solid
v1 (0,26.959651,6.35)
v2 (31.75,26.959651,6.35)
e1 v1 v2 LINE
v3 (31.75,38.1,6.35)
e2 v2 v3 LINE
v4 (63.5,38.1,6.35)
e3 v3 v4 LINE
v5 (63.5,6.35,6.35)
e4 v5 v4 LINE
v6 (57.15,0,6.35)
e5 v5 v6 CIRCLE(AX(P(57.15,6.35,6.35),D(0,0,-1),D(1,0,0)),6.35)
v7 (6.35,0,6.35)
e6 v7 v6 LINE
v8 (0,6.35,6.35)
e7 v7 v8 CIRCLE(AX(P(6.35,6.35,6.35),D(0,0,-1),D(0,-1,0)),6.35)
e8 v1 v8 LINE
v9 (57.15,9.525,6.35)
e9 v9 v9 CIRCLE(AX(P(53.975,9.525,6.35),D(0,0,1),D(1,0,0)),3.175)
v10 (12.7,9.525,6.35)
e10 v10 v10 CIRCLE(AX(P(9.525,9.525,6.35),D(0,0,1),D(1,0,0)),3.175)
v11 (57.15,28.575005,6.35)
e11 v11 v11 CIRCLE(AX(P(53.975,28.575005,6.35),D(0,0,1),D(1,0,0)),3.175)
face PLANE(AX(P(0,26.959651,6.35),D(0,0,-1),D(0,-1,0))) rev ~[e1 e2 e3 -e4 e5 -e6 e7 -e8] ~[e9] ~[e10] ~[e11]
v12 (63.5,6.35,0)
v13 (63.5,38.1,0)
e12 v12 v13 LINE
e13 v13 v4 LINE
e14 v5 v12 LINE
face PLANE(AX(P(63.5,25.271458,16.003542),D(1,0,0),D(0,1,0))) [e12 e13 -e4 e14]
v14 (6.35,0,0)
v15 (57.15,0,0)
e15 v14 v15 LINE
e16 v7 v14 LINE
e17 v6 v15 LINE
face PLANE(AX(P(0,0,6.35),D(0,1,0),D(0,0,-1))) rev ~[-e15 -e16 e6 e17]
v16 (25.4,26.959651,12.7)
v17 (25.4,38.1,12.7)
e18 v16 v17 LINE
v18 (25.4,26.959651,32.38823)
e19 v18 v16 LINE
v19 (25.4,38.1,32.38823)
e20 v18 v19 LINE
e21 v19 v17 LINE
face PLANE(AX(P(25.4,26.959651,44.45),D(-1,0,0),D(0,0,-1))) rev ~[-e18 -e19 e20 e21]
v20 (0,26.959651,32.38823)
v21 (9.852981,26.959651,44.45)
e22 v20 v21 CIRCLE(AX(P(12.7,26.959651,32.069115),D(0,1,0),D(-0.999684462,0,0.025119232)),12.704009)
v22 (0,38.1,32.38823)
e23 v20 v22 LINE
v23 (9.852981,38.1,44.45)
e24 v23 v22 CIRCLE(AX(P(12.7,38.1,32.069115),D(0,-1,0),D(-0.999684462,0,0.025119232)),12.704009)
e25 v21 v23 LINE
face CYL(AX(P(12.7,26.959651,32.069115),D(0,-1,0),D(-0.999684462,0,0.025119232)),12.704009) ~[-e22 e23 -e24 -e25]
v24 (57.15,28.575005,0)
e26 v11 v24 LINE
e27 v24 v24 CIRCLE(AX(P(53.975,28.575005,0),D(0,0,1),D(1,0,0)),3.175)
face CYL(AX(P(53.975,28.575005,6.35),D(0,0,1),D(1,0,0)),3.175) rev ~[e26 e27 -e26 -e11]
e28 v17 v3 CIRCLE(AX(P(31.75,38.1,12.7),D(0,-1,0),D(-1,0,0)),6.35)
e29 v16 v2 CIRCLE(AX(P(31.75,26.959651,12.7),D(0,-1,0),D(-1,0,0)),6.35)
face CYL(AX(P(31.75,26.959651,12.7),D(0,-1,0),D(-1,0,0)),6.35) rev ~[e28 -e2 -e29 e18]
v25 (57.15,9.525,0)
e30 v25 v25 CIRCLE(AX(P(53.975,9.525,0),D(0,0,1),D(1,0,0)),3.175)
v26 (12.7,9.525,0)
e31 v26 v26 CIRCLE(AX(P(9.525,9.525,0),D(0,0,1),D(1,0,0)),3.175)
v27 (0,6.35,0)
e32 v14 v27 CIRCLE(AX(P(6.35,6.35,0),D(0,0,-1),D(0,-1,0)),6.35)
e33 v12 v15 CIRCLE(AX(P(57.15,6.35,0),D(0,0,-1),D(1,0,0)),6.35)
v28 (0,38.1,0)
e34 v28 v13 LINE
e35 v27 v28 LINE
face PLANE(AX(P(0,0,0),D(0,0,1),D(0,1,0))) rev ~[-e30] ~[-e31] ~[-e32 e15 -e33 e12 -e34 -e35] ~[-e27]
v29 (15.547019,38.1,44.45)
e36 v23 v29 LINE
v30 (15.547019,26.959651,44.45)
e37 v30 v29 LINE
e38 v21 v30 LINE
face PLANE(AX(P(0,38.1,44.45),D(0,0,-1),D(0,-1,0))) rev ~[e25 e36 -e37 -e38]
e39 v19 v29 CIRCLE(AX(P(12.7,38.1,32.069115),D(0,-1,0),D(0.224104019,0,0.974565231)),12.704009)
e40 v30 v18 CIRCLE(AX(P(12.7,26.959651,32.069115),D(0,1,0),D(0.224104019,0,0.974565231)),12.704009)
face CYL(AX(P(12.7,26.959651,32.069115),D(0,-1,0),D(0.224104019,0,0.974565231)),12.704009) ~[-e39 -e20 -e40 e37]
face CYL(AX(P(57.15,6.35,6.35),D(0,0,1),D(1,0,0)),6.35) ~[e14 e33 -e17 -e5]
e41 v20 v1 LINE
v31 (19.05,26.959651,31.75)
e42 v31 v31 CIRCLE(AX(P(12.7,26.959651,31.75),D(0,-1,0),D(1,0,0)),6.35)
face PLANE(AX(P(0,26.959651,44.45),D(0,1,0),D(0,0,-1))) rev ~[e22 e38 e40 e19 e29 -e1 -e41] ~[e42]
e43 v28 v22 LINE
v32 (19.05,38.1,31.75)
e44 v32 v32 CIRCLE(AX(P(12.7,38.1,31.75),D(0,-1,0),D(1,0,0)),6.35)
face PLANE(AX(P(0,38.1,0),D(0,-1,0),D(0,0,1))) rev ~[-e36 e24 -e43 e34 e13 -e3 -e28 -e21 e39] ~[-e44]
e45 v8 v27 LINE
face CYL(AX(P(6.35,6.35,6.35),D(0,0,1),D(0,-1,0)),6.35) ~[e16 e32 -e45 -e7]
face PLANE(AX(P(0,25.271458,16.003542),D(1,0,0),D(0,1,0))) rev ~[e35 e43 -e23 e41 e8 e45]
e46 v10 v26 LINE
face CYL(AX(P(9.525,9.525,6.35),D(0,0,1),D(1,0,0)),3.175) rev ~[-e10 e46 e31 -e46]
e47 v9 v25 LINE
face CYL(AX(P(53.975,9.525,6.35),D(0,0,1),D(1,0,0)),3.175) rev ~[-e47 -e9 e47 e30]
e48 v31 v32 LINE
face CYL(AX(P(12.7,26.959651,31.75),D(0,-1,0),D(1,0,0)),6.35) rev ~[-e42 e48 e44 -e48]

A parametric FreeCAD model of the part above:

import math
import FreeCAD as App
import Part
import Sketcher
from FreeCAD import Vector
Q = App.Units.Quantity


def add_polygon(sketch, points):
    """Adds a closed chain of lines whose ends are joined by coincident constraints."""
    first, n = sketch.GeometryCount, len(points)
    for a, b in zip(points, points[1:] + points[:1]):
        sketch.addGeometry(Part.LineSegment(App.Vector(*a, 0), App.Vector(*b, 0)), False)
    for i in range(n):
        sketch.addConstraint(Sketcher.Constraint("Coincident", first + i, 2, first + (i + 1) % n, 1))

doc = App.newDocument("Part")
body = doc.addObject("PartDesign::Body", "Body")

sketch1 = doc.addObject("Sketcher::SketchObject", "Sketch")
body.addObject(sketch1)
sketch1.AttachmentSupport = (doc.YZ_Plane, [""])
sketch1.MapMode = "FlatFace"
add_polygon(sketch1, [(0, 6.35), (0, 0), (38.1, 0), (38.1, 44.45), (26.959651, 44.45), (26.959651, 6.35)])
sketch1.addConstraint([
    Sketcher.Constraint("Vertical", 0),
    Sketcher.Constraint("Horizontal", 1),
    Sketcher.Constraint("Vertical", 2),
    Sketcher.Constraint("Horizontal", 3),
    Sketcher.Constraint("Vertical", 4),
    Sketcher.Constraint("Horizontal", 5),
    Sketcher.Constraint("Coincident", 0, 2, -1, 1),
    Sketcher.Constraint("Equal", 1, 4),
    Sketcher.Constraint("DistanceX", 1, 1, 1, 2, Q("1.5 in")),
    Sketcher.Constraint("DistanceY", 0, 2, 0, 1, Q("0.25 in")),
    Sketcher.Constraint("DistanceX", 3, 2, 3, 1, Q("11.140349 mm")),
])
pad1 = doc.addObject("PartDesign::Pad", "Pad")
body.addObject(pad1)
pad1.Profile = sketch1
pad1.Length = Q("2.5 in")

sketch2 = doc.addObject("Sketcher::SketchObject", "Sketch001")
body.addObject(sketch2)
sketch2.AttachmentSupport = (doc.XZ_Plane, [""])
sketch2.MapMode = "FlatFace"
sketch2.AttachmentOffset = App.Placement(Vector(0, 0, -26.959651), App.Rotation())
sketch2.addGeometry([
    Part.LineSegment(Vector(63.5, 44.45, 0), Vector(25.4, 44.45, 0)),
    Part.LineSegment(Vector(25.4, 44.45, 0), Vector(25.4, 12.7, 0)),
    Part.ArcOfCircle(Part.Circle(Vector(31.75, 12.7, 0), Vector(0, 0, 1), 6.35), math.radians(180), math.radians(270)),
    Part.LineSegment(Vector(31.75, 6.35, 0), Vector(63.5, 6.35, 0)),
    Part.LineSegment(Vector(63.5, 6.35, 0), Vector(63.5, 44.45, 0)),
], False)
sketch2.addConstraint([
    Sketcher.Constraint("Coincident", 0, 2, 1, 1),
    Sketcher.Constraint("Tangent", 1, 2, 2, 1),
    Sketcher.Constraint("Tangent", 2, 2, 3, 1),
    Sketcher.Constraint("Coincident", 3, 2, 4, 1),
    Sketcher.Constraint("Coincident", 4, 2, 0, 1),
    Sketcher.Constraint("Horizontal", 0),
    Sketcher.Constraint("Vertical", 1),
    Sketcher.Constraint("Horizontal", 3),
    Sketcher.Constraint("Vertical", 4),
    Sketcher.Constraint("Equal", 3, 1),
    Sketcher.Constraint("Radius", 2, Q("0.25 in")),
    Sketcher.Constraint("DistanceX", 0, 2, 0, 1, Q("1.5 in")),
    Sketcher.Constraint("DistanceX", -1, 1, 0, 2, Q("1 in")),
    Sketcher.Constraint("DistanceY", -1, 1, 2, 3, Q("0.5 in")),
])
pocket1 = doc.addObject("PartDesign::Pocket", "Pocket")
body.addObject(pocket1)
pocket1.Profile = sketch2
pocket1.Length = Q("0.5 in")

sketch3 = doc.addObject("Sketcher::SketchObject", "Sketch002")
body.addObject(sketch3)
sketch3.AttachmentSupport = (doc.XZ_Plane, [""])
sketch3.MapMode = "FlatFace"
sketch3.AttachmentOffset = App.Placement(Vector(0, 0, -26.959651), App.Rotation())
sketch3.addGeometry([
    Part.ArcOfCircle(Part.Circle(Vector(12.7, 32.069115, 0), Vector(0, 0, 1), 12.704009), math.radians(1.439377), math.radians(77.049803)),
    Part.LineSegment(Vector(25.4, 32.38823, 0), Vector(25.4, 44.45, 0)),
    Part.LineSegment(Vector(25.4, 44.45, 0), Vector(15.547019, 44.45, 0)),
    Part.Circle(Vector(12.7, 31.75, 0), Vector(0, 0, 1), 6.35),
    Part.ArcOfCircle(Part.Circle(Vector(12.7, 32.069115, 0), Vector(0, 0, 1), 12.704009), math.radians(102.950197), math.radians(178.560623)),
    Part.LineSegment(Vector(9.852981, 44.45, 0), Vector(0, 44.45, 0)),
    Part.LineSegment(Vector(0, 44.45, 0), Vector(0, 32.38823, 0)),
], False)
sketch3.addConstraint([
    Sketcher.Constraint("Coincident", 0, 1, 1, 1),
    Sketcher.Constraint("Coincident", 1, 2, 2, 1),
    Sketcher.Constraint("Coincident", 2, 2, 0, 2),
    Sketcher.Constraint("Coincident", 4, 1, 5, 1),
    Sketcher.Constraint("Coincident", 5, 2, 6, 1),
    Sketcher.Constraint("Coincident", 6, 2, 4, 2),
    Sketcher.Constraint("Vertical", 1),
    Sketcher.Constraint("Horizontal", 2),
    Sketcher.Constraint("Horizontal", 5),
    Sketcher.Constraint("Vertical", 6),
    Sketcher.Constraint("Coincident", 4, 3, 0, 3),
    Sketcher.Constraint("Equal", 0, 4),
    Sketcher.Constraint("PointOnObject", 5, 2, -2),
    Sketcher.Constraint("Horizontal", 2, 2, 4, 1),
    Sketcher.Constraint("Horizontal", 0, 1, 6, 2),
    Sketcher.Constraint("Vertical", 0, 3, 3, 3),
    Sketcher.Constraint("Diameter", 3, Q("0.5 in")),
    Sketcher.Constraint("DistanceX", -1, 1, 0, 1, Q("1 in")),
    Sketcher.Constraint("DistanceY", 3, 3, 1, 2, Q("0.5 in")),
    Sketcher.Constraint("DistanceY", -1, 1, 3, 3, Q("1.25 in")),
    Sketcher.Constraint("Radius", 0, Q("12.704009 mm")),
    Sketcher.Constraint("DistanceX", 2, 2, 2, 1, Q("9.852981 mm")),
])
pocket2 = doc.addObject("PartDesign::Pocket", "Pocket001")
body.addObject(pocket2)
pocket2.Profile = sketch3
pocket2.Length = Q("0.5 in")

sketch4 = doc.addObject("Sketcher::SketchObject", "Sketch003")
body.addObject(sketch4)
sketch4.AttachmentSupport = (doc.XY_Plane, [""])
sketch4.MapMode = "FlatFace"
sketch4.AttachmentOffset = App.Placement(Vector(0, 0, 0.25 * 25.4), App.Rotation())
sketch4.addGeometry([
    Part.Circle(Vector(53.975, 9.525, 0), Vector(0, 0, 1), 3.175),
    Part.ArcOfCircle(Part.Circle(Vector(57.15, 6.35, 0), Vector(0, 0, 1), 6.35), math.radians(-90), math.radians(0)),
    Part.LineSegment(Vector(57.15, 0, 0), Vector(63.5, 0, 0)),
    Part.LineSegment(Vector(63.5, 0, 0), Vector(63.5, 6.35, 0)),
    Part.ArcOfCircle(Part.Circle(Vector(6.35, 6.35, 0), Vector(0, 0, 1), 6.35), math.radians(180), math.radians(270)),
    Part.LineSegment(Vector(0, 6.35, 0), Vector(0, 0, 0)),
    Part.LineSegment(Vector(0, 0, 0), Vector(6.35, 0, 0)),
    Part.Circle(Vector(9.525, 9.525, 0), Vector(0, 0, 1), 3.175),
    Part.Circle(Vector(53.975, 28.575005, 0), Vector(0, 0, 1), 3.175),
], False)
sketch4.addConstraint([
    Sketcher.Constraint("Tangent", 1, 1, 2, 1),
    Sketcher.Constraint("Coincident", 2, 2, 3, 1),
    Sketcher.Constraint("Tangent", 3, 2, 1, 2),
    Sketcher.Constraint("Tangent", 4, 1, 5, 1),
    Sketcher.Constraint("Coincident", 5, 2, 6, 1),
    Sketcher.Constraint("Tangent", 6, 2, 4, 2),
    Sketcher.Constraint("Horizontal", 2),
    Sketcher.Constraint("Vertical", 3),
    Sketcher.Constraint("Vertical", 5),
    Sketcher.Constraint("Horizontal", 6),
    Sketcher.Constraint("Coincident", 5, 2, -1, 1),
    Sketcher.Constraint("Equal", 1, 4),
    Sketcher.Constraint("Equal", 0, 7),
    Sketcher.Constraint("Equal", 7, 8),
    Sketcher.Constraint("PointOnObject", 1, 1, -1),
    Sketcher.Constraint("Horizontal", 0, 3, 7, 3),
    Sketcher.Constraint("Vertical", 0, 3, 8, 3),
    Sketcher.Constraint("Diameter", 0, Q("0.25 in")),
    Sketcher.Constraint("Radius", 1, Q("0.25 in")),
    Sketcher.Constraint("DistanceX", 4, 3, 1, 3, Q("2 in")),
    Sketcher.Constraint("DistanceX", 7, 3, 0, 3, Q("1.75 in")),
    Sketcher.Constraint("DistanceX", -1, 1, 0, 3, Q("2.125 in")),
    Sketcher.Constraint("DistanceY", -1, 1, 0, 3, Q("0.375 in")),
    Sketcher.Constraint("DistanceY", -1, 1, 8, 3, Q("28.575005 mm")),
])
pocket3 = doc.addObject("PartDesign::Pocket", "Pocket002")
body.addObject(pocket3)
pocket3.Profile = sketch4
pocket3.Length = Q("0.25 in")

doc.recompute()
